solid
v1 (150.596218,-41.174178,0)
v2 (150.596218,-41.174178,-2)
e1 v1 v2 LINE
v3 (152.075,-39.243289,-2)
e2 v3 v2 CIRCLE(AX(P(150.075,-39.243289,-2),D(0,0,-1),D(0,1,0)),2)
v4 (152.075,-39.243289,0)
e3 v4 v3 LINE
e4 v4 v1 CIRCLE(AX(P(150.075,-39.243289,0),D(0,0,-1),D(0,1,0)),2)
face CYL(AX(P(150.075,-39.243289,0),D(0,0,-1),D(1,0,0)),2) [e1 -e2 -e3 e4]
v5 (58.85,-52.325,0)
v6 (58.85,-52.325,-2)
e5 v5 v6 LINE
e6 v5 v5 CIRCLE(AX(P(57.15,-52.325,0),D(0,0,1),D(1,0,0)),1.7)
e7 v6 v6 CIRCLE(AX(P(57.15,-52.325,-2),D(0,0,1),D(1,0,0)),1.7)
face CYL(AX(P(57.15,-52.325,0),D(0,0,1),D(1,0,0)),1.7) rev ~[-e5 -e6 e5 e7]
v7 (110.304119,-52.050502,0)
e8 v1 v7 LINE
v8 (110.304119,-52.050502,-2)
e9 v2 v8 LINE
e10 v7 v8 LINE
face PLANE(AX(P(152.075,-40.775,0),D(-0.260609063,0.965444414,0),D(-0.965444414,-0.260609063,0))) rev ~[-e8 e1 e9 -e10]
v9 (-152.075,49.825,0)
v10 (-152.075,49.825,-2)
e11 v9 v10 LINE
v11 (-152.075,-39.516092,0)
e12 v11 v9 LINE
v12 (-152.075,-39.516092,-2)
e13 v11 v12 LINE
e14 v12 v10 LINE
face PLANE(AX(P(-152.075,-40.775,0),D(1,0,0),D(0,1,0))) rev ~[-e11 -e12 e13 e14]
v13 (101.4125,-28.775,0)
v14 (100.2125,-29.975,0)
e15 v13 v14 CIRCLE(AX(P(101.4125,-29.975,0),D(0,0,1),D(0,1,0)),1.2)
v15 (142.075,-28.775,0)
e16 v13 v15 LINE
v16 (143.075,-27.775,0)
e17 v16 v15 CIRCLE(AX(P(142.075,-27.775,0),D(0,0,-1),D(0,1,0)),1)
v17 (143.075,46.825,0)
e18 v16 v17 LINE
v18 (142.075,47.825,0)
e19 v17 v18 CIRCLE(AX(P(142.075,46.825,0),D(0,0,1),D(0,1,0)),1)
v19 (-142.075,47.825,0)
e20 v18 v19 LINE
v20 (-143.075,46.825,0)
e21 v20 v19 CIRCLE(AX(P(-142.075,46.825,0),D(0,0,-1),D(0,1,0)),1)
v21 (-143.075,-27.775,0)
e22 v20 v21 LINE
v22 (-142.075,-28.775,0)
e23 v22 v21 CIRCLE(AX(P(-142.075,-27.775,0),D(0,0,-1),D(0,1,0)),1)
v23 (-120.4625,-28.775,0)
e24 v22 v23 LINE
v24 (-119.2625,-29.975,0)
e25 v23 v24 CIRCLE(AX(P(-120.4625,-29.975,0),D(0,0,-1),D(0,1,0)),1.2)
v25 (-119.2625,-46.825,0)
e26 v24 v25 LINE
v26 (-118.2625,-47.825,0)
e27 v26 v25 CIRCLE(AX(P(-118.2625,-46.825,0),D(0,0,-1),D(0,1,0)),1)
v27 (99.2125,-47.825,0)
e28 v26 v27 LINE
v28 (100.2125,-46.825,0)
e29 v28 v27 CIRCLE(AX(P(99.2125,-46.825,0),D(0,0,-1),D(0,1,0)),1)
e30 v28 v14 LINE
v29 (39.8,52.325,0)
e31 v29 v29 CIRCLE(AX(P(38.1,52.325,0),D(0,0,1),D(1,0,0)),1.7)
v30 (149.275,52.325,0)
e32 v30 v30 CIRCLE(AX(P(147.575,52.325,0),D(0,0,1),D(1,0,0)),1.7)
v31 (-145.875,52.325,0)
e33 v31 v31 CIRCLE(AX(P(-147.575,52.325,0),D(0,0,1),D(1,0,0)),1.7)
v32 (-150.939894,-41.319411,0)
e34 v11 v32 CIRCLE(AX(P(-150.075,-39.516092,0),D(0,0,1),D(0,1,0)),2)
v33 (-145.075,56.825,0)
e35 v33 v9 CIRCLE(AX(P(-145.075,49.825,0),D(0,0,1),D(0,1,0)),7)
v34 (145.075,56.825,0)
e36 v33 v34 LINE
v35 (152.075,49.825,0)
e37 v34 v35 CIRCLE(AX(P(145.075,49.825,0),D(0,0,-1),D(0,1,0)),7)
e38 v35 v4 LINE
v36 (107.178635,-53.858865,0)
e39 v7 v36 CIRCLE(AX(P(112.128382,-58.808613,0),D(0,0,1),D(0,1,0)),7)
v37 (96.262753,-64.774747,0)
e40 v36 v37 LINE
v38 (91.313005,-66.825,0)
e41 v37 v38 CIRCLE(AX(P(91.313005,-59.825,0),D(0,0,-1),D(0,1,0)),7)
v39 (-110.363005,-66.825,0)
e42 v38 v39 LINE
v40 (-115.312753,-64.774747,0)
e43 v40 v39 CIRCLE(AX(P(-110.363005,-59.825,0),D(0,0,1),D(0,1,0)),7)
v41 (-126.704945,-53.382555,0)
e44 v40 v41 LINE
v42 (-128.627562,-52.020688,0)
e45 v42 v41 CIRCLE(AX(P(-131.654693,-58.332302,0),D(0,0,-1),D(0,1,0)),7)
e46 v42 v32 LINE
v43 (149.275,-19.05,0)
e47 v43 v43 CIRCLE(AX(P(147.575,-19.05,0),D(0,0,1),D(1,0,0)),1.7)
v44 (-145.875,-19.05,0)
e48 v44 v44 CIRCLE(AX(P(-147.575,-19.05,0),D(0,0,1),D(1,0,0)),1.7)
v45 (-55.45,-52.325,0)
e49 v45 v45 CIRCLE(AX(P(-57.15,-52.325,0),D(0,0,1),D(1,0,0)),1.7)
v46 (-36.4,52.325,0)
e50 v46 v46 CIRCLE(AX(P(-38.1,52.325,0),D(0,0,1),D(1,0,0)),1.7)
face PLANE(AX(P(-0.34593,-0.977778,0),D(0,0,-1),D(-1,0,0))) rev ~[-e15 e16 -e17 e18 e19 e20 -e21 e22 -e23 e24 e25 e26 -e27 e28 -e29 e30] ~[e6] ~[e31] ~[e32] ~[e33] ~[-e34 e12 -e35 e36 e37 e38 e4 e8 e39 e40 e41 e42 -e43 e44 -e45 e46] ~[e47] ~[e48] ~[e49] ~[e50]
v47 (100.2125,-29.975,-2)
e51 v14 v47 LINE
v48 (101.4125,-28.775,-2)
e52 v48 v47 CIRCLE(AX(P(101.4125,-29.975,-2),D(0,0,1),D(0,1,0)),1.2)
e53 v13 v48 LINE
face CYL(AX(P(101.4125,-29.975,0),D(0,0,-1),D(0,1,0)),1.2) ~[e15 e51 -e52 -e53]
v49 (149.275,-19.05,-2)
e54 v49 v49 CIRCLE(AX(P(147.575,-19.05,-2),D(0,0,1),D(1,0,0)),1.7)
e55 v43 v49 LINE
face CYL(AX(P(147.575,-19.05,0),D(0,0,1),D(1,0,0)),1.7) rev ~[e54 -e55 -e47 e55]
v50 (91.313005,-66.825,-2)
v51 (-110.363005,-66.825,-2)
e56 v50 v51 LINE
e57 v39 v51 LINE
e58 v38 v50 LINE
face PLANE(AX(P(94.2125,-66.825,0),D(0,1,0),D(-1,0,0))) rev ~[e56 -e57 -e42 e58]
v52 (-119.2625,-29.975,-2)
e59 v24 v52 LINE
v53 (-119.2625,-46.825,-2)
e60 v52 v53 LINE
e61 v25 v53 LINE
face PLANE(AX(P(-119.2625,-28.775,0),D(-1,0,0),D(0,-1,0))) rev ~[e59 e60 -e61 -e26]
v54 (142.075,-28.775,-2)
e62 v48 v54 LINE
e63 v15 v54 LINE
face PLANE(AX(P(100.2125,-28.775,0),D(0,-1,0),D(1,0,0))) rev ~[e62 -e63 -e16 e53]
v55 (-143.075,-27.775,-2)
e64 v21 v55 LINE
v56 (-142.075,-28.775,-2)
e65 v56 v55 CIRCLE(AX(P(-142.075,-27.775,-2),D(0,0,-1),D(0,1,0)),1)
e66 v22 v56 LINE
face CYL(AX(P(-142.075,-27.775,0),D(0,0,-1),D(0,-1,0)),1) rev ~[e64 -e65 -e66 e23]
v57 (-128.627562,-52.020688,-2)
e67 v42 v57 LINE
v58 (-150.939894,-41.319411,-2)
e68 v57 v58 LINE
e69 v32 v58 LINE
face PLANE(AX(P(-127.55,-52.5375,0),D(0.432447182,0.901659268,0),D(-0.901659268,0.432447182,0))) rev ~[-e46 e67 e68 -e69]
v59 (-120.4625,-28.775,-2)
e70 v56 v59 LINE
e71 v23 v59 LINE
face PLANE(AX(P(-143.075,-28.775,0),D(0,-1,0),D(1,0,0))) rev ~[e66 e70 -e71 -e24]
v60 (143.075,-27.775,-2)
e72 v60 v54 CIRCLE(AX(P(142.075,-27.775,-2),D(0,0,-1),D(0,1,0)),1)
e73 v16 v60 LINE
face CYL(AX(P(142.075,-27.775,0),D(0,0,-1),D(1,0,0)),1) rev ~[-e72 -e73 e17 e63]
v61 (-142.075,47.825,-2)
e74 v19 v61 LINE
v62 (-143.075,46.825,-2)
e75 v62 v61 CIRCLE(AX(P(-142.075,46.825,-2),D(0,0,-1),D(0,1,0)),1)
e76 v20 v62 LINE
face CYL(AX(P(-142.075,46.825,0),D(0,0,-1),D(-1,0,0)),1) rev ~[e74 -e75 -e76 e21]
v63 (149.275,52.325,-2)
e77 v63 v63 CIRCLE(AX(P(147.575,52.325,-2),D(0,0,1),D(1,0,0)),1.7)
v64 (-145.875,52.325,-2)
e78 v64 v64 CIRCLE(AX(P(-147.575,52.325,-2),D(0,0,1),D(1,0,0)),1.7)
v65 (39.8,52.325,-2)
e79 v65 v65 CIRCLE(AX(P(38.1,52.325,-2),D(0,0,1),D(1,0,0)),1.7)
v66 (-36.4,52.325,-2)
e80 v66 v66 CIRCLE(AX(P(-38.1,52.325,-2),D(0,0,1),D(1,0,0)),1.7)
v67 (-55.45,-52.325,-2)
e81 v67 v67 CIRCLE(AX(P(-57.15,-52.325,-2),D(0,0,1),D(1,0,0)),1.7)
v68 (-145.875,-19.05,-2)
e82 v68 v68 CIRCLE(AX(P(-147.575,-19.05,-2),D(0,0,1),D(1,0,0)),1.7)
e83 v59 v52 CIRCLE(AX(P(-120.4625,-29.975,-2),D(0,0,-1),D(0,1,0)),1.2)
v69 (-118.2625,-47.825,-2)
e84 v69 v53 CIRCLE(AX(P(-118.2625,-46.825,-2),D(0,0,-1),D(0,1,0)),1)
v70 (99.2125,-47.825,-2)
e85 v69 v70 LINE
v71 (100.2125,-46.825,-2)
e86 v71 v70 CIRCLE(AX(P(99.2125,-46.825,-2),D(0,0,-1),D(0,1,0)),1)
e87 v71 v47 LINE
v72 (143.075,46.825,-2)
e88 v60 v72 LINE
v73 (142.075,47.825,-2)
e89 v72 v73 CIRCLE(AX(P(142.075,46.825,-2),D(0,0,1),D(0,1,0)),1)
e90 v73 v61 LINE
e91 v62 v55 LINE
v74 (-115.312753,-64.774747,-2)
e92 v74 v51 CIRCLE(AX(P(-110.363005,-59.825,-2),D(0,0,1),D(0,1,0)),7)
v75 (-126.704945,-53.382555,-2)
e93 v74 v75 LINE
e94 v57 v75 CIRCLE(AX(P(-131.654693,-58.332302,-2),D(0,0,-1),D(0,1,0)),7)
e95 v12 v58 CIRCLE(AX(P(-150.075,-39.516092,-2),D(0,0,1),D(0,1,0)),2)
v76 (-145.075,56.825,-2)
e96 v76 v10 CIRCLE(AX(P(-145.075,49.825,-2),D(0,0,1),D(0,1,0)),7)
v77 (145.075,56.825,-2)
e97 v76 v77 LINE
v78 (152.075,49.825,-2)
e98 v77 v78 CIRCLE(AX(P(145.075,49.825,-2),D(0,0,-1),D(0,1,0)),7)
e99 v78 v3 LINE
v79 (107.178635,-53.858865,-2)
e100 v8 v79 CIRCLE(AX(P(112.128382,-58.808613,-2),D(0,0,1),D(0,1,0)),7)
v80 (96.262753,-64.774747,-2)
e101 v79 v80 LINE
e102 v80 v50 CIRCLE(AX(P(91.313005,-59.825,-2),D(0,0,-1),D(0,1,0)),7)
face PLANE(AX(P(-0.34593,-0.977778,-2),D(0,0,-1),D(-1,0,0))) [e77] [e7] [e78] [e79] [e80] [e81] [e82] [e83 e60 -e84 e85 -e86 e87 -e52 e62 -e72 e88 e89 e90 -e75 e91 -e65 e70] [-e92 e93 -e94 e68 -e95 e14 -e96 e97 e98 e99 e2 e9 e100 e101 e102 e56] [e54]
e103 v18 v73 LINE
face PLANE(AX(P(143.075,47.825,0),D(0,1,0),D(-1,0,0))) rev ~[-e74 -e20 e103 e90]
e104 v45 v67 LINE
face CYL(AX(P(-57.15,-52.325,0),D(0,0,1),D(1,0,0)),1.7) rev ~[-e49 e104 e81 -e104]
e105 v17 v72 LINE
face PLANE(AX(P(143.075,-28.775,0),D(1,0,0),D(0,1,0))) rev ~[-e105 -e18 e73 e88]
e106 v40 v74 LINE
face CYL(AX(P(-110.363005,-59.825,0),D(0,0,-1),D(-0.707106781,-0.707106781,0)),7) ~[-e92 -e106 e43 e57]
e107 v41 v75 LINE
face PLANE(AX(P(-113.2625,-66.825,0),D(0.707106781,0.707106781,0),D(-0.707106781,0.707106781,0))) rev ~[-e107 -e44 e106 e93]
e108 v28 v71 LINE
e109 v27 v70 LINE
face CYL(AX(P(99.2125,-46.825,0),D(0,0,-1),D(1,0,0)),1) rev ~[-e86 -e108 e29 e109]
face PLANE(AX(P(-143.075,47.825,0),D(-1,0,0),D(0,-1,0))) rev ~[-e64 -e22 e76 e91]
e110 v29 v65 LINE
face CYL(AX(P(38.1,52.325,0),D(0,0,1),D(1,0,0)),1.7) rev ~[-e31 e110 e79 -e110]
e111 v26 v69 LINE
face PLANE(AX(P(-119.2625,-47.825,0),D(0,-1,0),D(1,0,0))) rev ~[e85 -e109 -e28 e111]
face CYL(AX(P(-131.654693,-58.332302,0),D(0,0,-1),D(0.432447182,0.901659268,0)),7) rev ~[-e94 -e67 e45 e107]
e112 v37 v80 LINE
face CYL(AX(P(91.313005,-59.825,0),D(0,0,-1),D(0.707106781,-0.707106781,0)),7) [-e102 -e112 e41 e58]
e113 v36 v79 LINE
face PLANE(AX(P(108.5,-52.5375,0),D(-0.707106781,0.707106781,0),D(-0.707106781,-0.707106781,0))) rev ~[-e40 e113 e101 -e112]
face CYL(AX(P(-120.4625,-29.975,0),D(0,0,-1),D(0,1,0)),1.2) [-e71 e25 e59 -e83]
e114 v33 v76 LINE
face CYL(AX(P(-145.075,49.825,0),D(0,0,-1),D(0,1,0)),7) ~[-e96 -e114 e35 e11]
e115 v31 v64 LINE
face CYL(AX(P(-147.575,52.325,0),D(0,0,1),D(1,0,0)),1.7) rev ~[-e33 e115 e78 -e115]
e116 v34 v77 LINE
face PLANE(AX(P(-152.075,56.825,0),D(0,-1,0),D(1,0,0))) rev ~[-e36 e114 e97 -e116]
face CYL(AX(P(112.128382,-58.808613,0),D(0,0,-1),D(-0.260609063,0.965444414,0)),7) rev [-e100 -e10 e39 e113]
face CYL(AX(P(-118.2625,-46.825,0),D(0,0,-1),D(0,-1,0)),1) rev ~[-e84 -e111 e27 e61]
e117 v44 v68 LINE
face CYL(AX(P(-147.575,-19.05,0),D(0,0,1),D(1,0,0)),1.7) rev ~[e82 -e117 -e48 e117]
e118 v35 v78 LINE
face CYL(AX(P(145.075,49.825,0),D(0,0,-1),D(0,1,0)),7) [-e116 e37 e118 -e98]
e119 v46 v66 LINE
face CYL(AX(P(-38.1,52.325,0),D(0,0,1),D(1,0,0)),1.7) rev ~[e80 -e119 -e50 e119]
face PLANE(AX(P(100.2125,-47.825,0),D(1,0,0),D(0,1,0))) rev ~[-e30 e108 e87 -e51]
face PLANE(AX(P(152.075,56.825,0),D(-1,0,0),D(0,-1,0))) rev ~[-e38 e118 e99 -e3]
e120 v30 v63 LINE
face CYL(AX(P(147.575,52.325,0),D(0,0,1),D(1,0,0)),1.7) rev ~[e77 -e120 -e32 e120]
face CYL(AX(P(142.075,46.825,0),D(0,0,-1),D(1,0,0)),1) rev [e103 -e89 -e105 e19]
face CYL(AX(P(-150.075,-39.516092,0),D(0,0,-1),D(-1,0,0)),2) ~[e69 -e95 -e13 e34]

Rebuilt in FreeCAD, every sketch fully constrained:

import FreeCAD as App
import Part
import Sketcher

V = App.Vector


def edges_at(feature, points):
    """Names of the edges that pass closest to the given points."""
    edges = feature.Shape.Edges
    near = lambda p: min(range(len(edges)), key=lambda i: edges[i].distToShape(Part.Vertex(*p))[0])
    return sorted({f"Edge{near(p) + 1}" for p in points})

doc = App.newDocument("Part")
body = doc.addObject("PartDesign::Body", "Body")

# Sketch on XY plane
sketch1 = doc.addObject("Sketcher::SketchObject", "Sketch")
body.addObject(sketch1)
sketch1.AttachmentSupport = (doc.XY_Plane, [""])
sketch1.MapMode = "FlatFace"
sketch1.addGeometry([
    Part.LineSegment(V(152, 57, 0), V(-152, 57, 0)),  # 0
    Part.LineSegment(V(-152, 57, 0), V(-152, -41, 0)),  # 1
    Part.LineSegment(V(-152, -41, 0), V(-128, -53, 0)),  # 2
    Part.LineSegment(V(-128, -53, 0), V(-113, -67, 0)),  # 3
    Part.LineSegment(V(-113, -67, 0), V(94, -67, 0)),  # 4
    Part.LineSegment(V(94, -67, 0), V(108, -53, 0)),  # 5
    Part.LineSegment(V(108, -53, 0), V(152, -41, 0)),  # 6
    Part.LineSegment(V(152, -41, 0), V(152, 57, 0)),  # 7
    Part.LineSegment(V(143, 48, 0), V(143, -29, 0)),  # 8
    Part.LineSegment(V(143, -29, 0), V(100, -29, 0)),  # 9
    Part.LineSegment(V(100, -29, 0), V(100, -48, 0)),  # 10
    Part.LineSegment(V(100, -48, 0), V(-119, -48, 0)),  # 11
    Part.LineSegment(V(-119, -48, 0), V(-119, -29, 0)),  # 12
    Part.LineSegment(V(-119, -29, 0), V(-143, -29, 0)),  # 13
    Part.LineSegment(V(-143, -29, 0), V(-143, 48, 0)),  # 14
    Part.LineSegment(V(-143, 48, 0), V(143, 48, 0)),  # 15
], False)
sketch1.addConstraint([
    Sketcher.Constraint("Coincident", 0, 2, 1, 1),
    Sketcher.Constraint("Coincident", 1, 2, 2, 1),
    Sketcher.Constraint("Coincident", 2, 2, 3, 1),
    Sketcher.Constraint("Coincident", 3, 2, 4, 1),
    Sketcher.Constraint("Coincident", 4, 2, 5, 1),
    Sketcher.Constraint("Coincident", 5, 2, 6, 1),
    Sketcher.Constraint("Coincident", 6, 2, 7, 1),
    Sketcher.Constraint("Coincident", 7, 2, 0, 1),
    Sketcher.Constraint("Coincident", 8, 2, 9, 1),
    Sketcher.Constraint("Coincident", 9, 2, 10, 1),
    Sketcher.Constraint("Coincident", 10, 2, 11, 1),
    Sketcher.Constraint("Coincident", 11, 2, 12, 1),
    Sketcher.Constraint("Coincident", 12, 2, 13, 1),
    Sketcher.Constraint("Coincident", 13, 2, 14, 1),
    Sketcher.Constraint("Coincident", 14, 2, 15, 1),
    Sketcher.Constraint("Coincident", 15, 2, 8, 1),
    Sketcher.Constraint("Horizontal", 0),
    Sketcher.Constraint("Vertical", 1),
    Sketcher.Constraint("Horizontal", 4),
    Sketcher.Constraint("Vertical", 7),
    Sketcher.Constraint("Vertical", 8),
    Sketcher.Constraint("Horizontal", 9),
    Sketcher.Constraint("Vertical", 10),
    Sketcher.Constraint("Horizontal", 11),
    Sketcher.Constraint("Vertical", 12),
    Sketcher.Constraint("Horizontal", 13),
    Sketcher.Constraint("Vertical", 14),
    Sketcher.Constraint("Horizontal", 15),
    Sketcher.Constraint("Symmetric", 1, 2, 6, 2, -2),
    Sketcher.Constraint("Symmetric", 8, 2, 13, 2, -2),
    Sketcher.Constraint("Perpendicular", 3, 5),
    Sketcher.Constraint("Horizontal", 2, 2, 5, 2),
    Sketcher.Constraint("Equal", 3, 5),
    Sketcher.Constraint("DistanceY", 1, 2, 1, 1, 97.6),
    Sketcher.Constraint("DistanceY", 8, 2, 8, 1, 76.6),
    Sketcher.Constraint("DistanceX", 8, 2, 6, 2, 9.0),
    Sketcher.Constraint("DistanceY", 6, 2, 8, 2, 12.0),
    Sketcher.Constraint("DistanceX", 4, 2, 9, 2, 6.0),
    Sketcher.Constraint("DistanceY", 4, 2, 10, 2, 19.0),
    Sketcher.Constraint("DistanceX", 11, 2, 3, 2, 6.0),
    Sketcher.Constraint("DistanceX", 0, 2, 0, 1, 304.15),
    Sketcher.Constraint("DistanceY", 10, 2, 10, 1, 19.05),
    Sketcher.Constraint("DistanceX", -1, 1, 5, 2, 108.5),
    Sketcher.Constraint("DistanceX", 4, 1, 4, 2, 207.475),
    Sketcher.Constraint("DistanceX", 2, 2, -1, 1, 127.55),
    Sketcher.Constraint("DistanceY", -1, 1, 0, 2, 56.825),
])
pad1 = doc.addObject("PartDesign::Pad", "Pad")
body.addObject(pad1)
pad1.Profile = sketch1
pad1.Length = 2
pad1.Reversed = True
doc.recompute()

fillet = doc.addObject("PartDesign::Fillet", "Fillet")
body.addObject(fillet)
fillet.Base = (pad1, edges_at(pad1, [
    (152.075, 56.825, -1),
    (108.5, -52.538, -1),
    (94.213, -66.825, -1),
    (-113.263, -66.825, -1),
    (-127.55, -52.538, -1),
    (-152.075, 56.825, -1),
]))
fillet.Radius = 7
doc.recompute()

fillet2 = doc.addObject("PartDesign::Fillet", "Fillet001")
body.addObject(fillet2)
fillet2.Base = (fillet, edges_at(fillet, [(-152.075, -40.775, -1), (152.075, -40.775, -1)]))
fillet2.Radius = 2
doc.recompute()

fillet3 = doc.addObject("PartDesign::Fillet", "Fillet002")
body.addObject(fillet3)
fillet3.Base = (fillet2, edges_at(fillet2, [
    (143.075, 47.825, -1),
    (143.075, -28.775, -1),
    (100.213, -47.825, -1),
    (-143.075, -28.775, -1),
    (-119.263, -47.825, -1),
    (-143.075, 47.825, -1),
]))
fillet3.Radius = 1
doc.recompute()

fillet4 = doc.addObject("PartDesign::Fillet", "Fillet003")
body.addObject(fillet4)
fillet4.Base = (fillet3, edges_at(fillet3, [(-119.263, -28.775, -1), (100.213, -28.775, -1)]))
fillet4.Radius = 1.2

# Sketch on XY plane
sketch2 = doc.addObject("Sketcher::SketchObject", "Sketch001")
body.addObject(sketch2)
sketch2.AttachmentSupport = (doc.XY_Plane, [""])
sketch2.MapMode = "FlatFace"
sketch2.addGeometry([
    Part.Circle(V(147.6, 52.3, 0), V(0, 0, 1), 1.7),  # 0
    Part.Circle(V(147.6, -19.1, 0), V(0, 0, 1), 1.7),  # 1
    Part.Circle(V(57.1, -52.3, 0), V(0, 0, 1), 1.7),  # 2
    Part.Circle(V(-57.1, -52.3, 0), V(0, 0, 1), 1.7),  # 3
    Part.Circle(V(-147.6, -19.1, 0), V(0, 0, 1), 1.7),  # 4
    Part.Circle(V(-147.6, 52.3, 0), V(0, 0, 1), 1.7),  # 5
    Part.Circle(V(-38.1, 52.3, 0), V(0, 0, 1), 1.7),  # 6
    Part.Circle(V(38.1, 52.3, 0), V(0, 0, 1), 1.7),  # 7
], False)
sketch2.addConstraint([
    Sketcher.Constraint("Equal", 0, 1),
    Sketcher.Constraint("Equal", 1, 2),
    Sketcher.Constraint("Equal", 2, 3),
    Sketcher.Constraint("Equal", 3, 4),
    Sketcher.Constraint("Equal", 4, 5),
    Sketcher.Constraint("Equal", 5, 6),
    Sketcher.Constraint("Equal", 6, 7),
    Sketcher.Constraint("Symmetric", 2, 3, 3, 3, -2),
    Sketcher.Constraint("Symmetric", 1, 3, 4, 3, -2),
    Sketcher.Constraint("Symmetric", 0, 3, 5, 3, -2),
    Sketcher.Constraint("Symmetric", 6, 3, 7, 3, -2),
    Sketcher.Constraint("Horizontal", 5, 3, 6, 3),
    Sketcher.Constraint("Vertical", 0, 3, 1, 3),
    Sketcher.Constraint("Diameter", 0, 3.4),
    Sketcher.Constraint("DistanceX", 6, 3, -1, 1, 38.1),
    Sketcher.Constraint("DistanceX", 3, 3, 2, 3, 114.3),
    Sketcher.Constraint("DistanceY", 1, 3, -1, 1, 19.05),
    Sketcher.Constraint("DistanceY", 2, 3, 0, 3, 104.65),
    Sketcher.Constraint("DistanceX", 4, 3, 1, 3, 295.15),
    Sketcher.Constraint("DistanceY", -1, 1, 0, 3, 52.325),
])
pocket1 = doc.addObject("PartDesign::Pocket", "Pocket")
body.addObject(pocket1)
pocket1.Profile = sketch2
pocket1.Length = 25

doc.recompute()
